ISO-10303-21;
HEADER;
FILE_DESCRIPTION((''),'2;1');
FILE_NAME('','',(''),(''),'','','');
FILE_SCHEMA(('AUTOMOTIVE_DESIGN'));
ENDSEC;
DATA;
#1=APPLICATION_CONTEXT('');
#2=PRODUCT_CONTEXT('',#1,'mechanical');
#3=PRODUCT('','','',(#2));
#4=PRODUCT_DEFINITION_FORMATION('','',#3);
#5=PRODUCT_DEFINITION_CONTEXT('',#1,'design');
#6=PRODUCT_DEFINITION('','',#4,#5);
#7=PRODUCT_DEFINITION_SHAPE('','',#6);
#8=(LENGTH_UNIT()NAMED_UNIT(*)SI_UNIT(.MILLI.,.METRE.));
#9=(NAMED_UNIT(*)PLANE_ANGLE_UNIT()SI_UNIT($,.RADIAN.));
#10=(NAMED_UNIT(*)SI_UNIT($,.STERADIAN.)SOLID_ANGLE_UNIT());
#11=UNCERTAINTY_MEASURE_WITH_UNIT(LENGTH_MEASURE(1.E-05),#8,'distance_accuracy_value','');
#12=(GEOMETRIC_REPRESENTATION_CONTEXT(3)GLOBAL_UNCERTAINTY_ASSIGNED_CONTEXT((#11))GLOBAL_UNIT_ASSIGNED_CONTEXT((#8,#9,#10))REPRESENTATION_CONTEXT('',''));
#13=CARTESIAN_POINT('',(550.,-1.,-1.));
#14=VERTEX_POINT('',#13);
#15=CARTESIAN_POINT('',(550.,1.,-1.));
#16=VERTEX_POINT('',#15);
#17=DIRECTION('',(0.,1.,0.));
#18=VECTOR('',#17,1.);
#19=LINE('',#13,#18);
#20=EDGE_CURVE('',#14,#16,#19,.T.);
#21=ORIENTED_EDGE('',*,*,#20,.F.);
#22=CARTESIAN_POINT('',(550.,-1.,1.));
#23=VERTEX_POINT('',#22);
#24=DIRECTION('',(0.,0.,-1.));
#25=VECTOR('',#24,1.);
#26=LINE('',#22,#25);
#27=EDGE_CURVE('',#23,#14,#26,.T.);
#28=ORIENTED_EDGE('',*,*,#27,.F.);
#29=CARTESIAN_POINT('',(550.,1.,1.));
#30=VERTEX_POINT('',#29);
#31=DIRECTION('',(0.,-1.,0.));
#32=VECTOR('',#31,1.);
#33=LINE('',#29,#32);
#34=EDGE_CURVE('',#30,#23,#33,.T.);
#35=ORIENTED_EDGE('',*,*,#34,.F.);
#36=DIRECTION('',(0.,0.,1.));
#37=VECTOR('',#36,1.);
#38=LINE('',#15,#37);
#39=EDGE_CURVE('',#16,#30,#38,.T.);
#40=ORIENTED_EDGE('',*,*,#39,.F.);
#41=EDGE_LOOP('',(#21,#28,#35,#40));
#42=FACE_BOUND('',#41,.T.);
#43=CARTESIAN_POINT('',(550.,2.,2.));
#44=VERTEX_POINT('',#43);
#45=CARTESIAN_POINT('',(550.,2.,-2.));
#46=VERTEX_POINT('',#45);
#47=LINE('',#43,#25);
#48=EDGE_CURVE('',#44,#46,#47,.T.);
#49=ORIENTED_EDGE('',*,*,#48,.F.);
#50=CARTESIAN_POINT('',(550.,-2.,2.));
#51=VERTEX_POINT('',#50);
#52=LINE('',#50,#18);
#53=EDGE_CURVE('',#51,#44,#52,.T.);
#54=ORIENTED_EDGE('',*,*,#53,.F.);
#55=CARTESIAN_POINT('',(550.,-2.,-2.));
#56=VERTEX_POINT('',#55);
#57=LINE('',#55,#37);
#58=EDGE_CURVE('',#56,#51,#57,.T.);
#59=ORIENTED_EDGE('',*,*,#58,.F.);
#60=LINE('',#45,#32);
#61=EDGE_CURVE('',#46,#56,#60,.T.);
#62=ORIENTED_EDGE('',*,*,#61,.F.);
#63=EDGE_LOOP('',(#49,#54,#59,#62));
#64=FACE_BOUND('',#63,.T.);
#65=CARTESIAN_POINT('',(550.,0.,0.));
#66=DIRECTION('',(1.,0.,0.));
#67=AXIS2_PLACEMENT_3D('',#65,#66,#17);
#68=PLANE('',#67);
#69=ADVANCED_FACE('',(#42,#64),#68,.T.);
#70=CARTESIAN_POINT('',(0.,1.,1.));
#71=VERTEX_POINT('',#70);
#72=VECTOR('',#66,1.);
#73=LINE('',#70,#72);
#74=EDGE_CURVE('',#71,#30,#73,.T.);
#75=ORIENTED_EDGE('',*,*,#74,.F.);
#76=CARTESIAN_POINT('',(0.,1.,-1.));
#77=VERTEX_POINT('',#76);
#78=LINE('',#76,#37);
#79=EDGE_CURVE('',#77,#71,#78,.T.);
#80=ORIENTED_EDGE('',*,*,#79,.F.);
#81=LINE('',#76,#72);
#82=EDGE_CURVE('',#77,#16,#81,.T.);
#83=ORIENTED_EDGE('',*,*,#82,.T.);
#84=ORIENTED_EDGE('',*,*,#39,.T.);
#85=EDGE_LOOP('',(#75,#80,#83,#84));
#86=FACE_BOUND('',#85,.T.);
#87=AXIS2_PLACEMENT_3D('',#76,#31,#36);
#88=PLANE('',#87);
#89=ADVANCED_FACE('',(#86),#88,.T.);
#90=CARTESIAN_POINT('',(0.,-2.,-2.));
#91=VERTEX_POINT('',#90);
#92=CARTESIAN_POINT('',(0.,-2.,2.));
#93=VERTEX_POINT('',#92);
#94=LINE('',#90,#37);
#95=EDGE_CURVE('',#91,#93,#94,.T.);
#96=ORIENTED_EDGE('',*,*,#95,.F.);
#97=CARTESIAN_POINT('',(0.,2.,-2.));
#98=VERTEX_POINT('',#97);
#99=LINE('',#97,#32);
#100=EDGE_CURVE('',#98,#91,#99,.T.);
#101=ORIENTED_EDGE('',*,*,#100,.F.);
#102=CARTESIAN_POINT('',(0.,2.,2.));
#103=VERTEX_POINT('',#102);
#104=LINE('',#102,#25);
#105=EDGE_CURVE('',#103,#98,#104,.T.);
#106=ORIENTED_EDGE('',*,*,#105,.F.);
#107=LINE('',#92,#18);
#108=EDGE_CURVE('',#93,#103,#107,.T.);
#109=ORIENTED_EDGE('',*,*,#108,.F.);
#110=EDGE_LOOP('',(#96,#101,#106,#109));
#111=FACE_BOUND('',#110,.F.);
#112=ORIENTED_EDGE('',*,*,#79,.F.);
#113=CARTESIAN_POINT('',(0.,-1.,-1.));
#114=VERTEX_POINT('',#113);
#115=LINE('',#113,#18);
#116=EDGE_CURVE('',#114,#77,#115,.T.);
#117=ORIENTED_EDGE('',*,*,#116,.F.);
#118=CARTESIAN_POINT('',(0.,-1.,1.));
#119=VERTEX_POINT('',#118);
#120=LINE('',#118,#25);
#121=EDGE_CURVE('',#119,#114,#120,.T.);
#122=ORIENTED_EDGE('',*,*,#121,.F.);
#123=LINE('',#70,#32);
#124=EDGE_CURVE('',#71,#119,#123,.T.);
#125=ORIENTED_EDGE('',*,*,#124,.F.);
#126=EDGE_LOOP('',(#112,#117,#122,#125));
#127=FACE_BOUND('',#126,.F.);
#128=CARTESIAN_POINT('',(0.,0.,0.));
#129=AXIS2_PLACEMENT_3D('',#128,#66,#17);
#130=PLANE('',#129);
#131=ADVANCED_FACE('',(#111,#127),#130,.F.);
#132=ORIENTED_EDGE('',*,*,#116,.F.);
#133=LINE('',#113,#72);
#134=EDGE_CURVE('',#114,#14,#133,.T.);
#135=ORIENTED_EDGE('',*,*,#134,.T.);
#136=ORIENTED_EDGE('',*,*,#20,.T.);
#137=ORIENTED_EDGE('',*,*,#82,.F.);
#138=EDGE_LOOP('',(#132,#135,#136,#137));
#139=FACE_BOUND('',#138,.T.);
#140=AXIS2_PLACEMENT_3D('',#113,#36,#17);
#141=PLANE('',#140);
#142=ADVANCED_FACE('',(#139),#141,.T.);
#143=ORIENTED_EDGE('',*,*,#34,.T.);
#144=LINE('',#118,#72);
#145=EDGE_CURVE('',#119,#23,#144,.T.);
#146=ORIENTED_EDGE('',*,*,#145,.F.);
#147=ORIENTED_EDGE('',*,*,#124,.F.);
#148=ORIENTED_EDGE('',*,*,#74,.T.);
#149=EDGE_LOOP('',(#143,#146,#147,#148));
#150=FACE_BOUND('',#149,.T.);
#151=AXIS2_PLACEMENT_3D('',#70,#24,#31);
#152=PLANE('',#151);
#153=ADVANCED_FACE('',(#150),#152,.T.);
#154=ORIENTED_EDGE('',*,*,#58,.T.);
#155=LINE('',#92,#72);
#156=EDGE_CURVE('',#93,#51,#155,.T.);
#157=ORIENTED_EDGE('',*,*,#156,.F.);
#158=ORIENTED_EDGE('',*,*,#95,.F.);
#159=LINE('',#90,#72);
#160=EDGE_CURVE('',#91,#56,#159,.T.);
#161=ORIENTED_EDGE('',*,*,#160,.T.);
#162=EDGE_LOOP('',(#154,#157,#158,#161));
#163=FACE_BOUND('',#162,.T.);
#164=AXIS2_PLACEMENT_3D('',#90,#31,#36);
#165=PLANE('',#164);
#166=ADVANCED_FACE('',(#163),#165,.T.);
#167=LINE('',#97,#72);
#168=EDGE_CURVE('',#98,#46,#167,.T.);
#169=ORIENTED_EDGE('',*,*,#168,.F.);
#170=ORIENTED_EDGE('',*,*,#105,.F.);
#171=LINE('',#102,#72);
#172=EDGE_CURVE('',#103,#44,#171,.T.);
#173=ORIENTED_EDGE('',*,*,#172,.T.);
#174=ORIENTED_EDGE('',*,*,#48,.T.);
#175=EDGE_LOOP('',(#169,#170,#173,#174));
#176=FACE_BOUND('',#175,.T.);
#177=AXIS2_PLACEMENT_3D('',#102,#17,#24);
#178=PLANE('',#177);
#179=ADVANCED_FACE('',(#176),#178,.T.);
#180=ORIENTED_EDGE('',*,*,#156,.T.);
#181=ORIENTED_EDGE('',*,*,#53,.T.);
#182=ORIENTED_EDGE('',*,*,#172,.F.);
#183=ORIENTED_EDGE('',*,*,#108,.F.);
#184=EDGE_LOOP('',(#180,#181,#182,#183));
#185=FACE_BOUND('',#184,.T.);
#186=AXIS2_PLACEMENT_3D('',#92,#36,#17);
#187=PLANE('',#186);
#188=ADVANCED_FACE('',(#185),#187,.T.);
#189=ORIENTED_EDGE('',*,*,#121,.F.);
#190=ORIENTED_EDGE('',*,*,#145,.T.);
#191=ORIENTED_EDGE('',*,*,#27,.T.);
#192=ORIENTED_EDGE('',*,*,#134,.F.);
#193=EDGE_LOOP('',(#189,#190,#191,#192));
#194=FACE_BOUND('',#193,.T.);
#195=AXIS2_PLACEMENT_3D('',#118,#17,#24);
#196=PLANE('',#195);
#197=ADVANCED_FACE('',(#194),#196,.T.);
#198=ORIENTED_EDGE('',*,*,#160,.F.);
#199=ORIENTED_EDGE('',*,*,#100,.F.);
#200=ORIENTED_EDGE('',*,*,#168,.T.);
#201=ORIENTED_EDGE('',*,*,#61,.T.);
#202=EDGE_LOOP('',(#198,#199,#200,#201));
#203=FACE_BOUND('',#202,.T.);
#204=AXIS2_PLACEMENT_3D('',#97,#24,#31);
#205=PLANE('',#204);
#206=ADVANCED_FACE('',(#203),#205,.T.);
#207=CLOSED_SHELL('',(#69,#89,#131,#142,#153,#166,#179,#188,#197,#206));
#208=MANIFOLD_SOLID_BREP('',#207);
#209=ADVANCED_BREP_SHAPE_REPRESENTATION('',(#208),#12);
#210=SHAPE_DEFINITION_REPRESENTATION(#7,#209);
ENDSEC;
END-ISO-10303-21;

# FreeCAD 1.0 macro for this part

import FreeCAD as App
import Part
import Sketcher

V = App.Vector


def add_polygon(sketch, points):
    """Adds a closed chain of lines whose ends are joined by coincident constraints."""
    first, n = sketch.GeometryCount, len(points)
    for a, b in zip(points, points[1:] + points[:1]):
        sketch.addGeometry(Part.LineSegment(App.Vector(*a, 0), App.Vector(*b, 0)), False)
    for i in range(n):
        sketch.addConstraint(Sketcher.Constraint("Coincident", first + i, 2, first + (i + 1) % n, 1))

doc = App.newDocument("Part")
body = doc.addObject("PartDesign::Body", "Body")

# Sketch on YZ plane
sketch1 = body.newObject("Sketcher::SketchObject", "Sketch")
sketch1.AttachmentSupport = (doc.getObject("YZ_Plane"), [""])
sketch1.MapMode = "FlatFace"
add_polygon(sketch1, [(2, 2), (-2, 2), (-2, -2), (2, -2)])  # lines 0-3
add_polygon(sketch1, [(-1, 1), (1, 1), (1, -1), (-1, -1)])  # lines 4-7
sketch1.addConstraint([
    Sketcher.Constraint("Horizontal", 0),
    Sketcher.Constraint("Vertical", 1),
    Sketcher.Constraint("Horizontal", 2),
    Sketcher.Constraint("Vertical", 3),
    Sketcher.Constraint("Horizontal", 4),
    Sketcher.Constraint("Vertical", 5),
    Sketcher.Constraint("Horizontal", 6),
    Sketcher.Constraint("Vertical", 7),
    Sketcher.Constraint("Symmetric", 0, 2, 2, 2, -1, 1),
    Sketcher.Constraint("Symmetric", 4, 2, 6, 2, -1, 1),
    Sketcher.Constraint("Equal", 2, 1),
    Sketcher.Constraint("Equal", 6, 5),
    Sketcher.Constraint("DistanceX", 0, 2, 0, 1, 4.0),
    Sketcher.Constraint("DistanceX", 4, 1, 4, 2, 2.0),
])
pad1 = body.newObject("PartDesign::Pad", "Pad")
pad1.Profile = sketch1
pad1.Length = 550

doc.recompute()
